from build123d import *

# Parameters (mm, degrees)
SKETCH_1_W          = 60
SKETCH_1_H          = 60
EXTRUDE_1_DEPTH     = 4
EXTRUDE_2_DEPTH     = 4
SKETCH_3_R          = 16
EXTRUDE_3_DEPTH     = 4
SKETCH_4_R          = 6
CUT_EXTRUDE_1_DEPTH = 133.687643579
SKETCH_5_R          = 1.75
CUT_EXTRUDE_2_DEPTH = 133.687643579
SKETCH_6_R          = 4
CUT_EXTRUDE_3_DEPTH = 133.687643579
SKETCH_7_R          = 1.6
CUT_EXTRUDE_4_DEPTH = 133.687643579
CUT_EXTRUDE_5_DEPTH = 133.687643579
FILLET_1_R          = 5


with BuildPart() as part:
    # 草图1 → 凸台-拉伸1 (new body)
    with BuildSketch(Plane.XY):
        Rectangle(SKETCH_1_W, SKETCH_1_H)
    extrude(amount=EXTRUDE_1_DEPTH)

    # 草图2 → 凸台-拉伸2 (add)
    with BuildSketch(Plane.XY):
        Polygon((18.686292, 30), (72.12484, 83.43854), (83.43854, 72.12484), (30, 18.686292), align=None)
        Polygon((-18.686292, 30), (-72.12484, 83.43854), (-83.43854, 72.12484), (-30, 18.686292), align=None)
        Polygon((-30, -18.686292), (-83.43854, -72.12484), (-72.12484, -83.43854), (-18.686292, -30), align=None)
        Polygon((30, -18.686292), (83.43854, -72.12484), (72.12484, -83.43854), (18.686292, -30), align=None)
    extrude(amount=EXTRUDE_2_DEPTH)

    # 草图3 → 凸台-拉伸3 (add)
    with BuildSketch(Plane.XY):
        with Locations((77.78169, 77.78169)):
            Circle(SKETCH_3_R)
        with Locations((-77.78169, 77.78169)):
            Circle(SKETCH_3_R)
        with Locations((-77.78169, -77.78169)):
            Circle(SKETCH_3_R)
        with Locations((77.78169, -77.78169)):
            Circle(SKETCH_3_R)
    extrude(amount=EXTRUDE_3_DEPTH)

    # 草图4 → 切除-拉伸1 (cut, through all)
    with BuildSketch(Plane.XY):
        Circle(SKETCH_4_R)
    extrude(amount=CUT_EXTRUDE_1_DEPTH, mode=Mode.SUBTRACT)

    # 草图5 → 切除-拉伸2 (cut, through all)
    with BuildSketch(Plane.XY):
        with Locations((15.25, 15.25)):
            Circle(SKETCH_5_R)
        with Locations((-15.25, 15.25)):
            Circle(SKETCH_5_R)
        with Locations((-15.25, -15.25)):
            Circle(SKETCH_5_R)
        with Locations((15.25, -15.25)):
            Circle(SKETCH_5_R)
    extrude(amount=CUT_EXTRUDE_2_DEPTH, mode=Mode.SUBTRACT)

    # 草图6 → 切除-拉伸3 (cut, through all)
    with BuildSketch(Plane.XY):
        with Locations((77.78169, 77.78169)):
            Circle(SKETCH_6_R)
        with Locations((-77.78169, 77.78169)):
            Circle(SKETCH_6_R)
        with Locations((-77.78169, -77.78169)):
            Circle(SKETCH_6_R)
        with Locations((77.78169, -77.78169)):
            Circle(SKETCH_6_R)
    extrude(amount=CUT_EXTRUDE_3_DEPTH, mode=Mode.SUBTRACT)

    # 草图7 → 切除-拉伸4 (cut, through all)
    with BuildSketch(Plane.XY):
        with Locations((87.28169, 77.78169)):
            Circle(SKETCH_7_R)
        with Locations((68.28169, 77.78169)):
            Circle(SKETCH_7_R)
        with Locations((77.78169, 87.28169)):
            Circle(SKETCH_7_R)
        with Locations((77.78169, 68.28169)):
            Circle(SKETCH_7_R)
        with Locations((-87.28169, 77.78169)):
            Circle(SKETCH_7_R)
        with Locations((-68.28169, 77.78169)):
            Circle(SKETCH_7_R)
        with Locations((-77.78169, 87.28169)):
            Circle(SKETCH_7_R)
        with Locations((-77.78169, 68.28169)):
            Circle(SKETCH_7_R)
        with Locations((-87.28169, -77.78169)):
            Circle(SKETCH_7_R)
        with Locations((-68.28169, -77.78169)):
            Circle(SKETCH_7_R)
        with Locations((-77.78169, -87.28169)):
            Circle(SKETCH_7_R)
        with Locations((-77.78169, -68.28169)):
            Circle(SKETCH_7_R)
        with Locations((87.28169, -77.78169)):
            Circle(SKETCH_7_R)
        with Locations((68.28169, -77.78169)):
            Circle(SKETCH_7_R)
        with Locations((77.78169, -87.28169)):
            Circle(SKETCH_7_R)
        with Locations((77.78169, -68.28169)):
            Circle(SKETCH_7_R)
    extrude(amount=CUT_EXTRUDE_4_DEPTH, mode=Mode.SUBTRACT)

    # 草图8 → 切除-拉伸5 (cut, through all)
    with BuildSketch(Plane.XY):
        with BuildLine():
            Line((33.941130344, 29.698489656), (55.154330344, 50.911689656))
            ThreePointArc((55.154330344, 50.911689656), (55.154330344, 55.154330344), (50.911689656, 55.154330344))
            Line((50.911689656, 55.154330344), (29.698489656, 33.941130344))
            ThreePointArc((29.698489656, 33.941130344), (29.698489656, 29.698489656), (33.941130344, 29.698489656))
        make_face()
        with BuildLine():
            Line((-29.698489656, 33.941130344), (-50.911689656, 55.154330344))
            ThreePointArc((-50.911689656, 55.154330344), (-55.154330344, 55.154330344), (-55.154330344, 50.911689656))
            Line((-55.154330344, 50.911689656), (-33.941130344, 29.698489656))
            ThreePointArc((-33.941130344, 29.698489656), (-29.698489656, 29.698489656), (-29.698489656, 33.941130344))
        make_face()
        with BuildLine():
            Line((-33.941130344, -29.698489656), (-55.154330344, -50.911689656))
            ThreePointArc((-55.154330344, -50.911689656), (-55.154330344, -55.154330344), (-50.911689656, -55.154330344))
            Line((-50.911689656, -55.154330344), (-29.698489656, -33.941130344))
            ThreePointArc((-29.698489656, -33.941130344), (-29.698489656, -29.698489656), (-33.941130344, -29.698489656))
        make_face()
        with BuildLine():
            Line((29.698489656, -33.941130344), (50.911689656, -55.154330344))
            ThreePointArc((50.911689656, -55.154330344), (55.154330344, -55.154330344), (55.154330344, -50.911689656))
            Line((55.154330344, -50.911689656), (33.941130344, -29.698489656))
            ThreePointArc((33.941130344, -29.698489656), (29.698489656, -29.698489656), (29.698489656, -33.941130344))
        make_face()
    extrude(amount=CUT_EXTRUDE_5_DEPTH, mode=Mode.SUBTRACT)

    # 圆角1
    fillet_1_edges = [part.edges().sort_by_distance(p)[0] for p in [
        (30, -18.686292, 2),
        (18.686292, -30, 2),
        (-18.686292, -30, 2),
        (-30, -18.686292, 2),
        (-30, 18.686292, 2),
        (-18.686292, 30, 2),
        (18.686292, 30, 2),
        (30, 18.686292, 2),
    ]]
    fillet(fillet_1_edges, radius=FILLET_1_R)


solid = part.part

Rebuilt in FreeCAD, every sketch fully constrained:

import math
import FreeCAD as App
import Part
import Sketcher

V = App.Vector


def edges_at(feature, points):
    """Names of the edges that pass closest to the given points."""
    edges = feature.Shape.Edges
    near = lambda p: min(range(len(edges)), key=lambda i: edges[i].distToShape(Part.Vertex(*p))[0])
    return sorted({f"Edge{near(p) + 1}" for p in points})

doc = App.newDocument("Part")
body = doc.addObject("PartDesign::Body", "Body")

sketch1 = body.newObject("Sketcher::SketchObject", "Sketch")
sketch1.AttachmentSupport = (doc.getObject("XY_Plane"), [""])
sketch1.MapMode = "FlatFace"
sketch1.addGeometry(Part.LineSegment(V(-30, 30, 0), V(-30, -30, 0)), False)
sketch1.addGeometry(Part.LineSegment(V(-30, -30, 0), V(30, -30, 0)), False)
sketch1.addGeometry(Part.LineSegment(V(30, -30, 0), V(30, 30, 0)), False)
sketch1.addGeometry(Part.LineSegment(V(30, 30, 0), V(-30, 30, 0)), False)
sketch1.addConstraint(Sketcher.Constraint("Coincident", 0, 2, 1, 1))
sketch1.addConstraint(Sketcher.Constraint("Coincident", 1, 2, 2, 1))
sketch1.addConstraint(Sketcher.Constraint("Coincident", 2, 2, 3, 1))
sketch1.addConstraint(Sketcher.Constraint("Coincident", 3, 2, 0, 1))
sketch1.addConstraint(Sketcher.Constraint("Vertical", 0))
sketch1.addConstraint(Sketcher.Constraint("Horizontal", 1))
sketch1.addConstraint(Sketcher.Constraint("Vertical", 2))
sketch1.addConstraint(Sketcher.Constraint("Horizontal", 3))
sketch1.addConstraint(Sketcher.Constraint("Symmetric", 0, 2, 2, 2, -1, 1))
sketch1.addConstraint(Sketcher.Constraint("Equal", 3, 0))
sketch1.addConstraint(Sketcher.Constraint("DistanceX", 1, 1, 1, 2, 60.0))
pad1 = body.newObject("PartDesign::Pad", "Pad")
pad1.Profile = sketch1
pad1.Length = 4

sketch2 = body.newObject("Sketcher::SketchObject", "Sketch001")
sketch2.AttachmentSupport = (doc.getObject("XY_Plane"), [""])
sketch2.MapMode = "FlatFace"
sketch2.addGeometry(Part.LineSegment(V(72, 83, 0), V(19, 30, 0)), False)
sketch2.addGeometry(Part.LineSegment(V(19, 30, 0), V(30, 19, 0)), False)
sketch2.addGeometry(Part.LineSegment(V(30, 19, 0), V(83, 72, 0)), False)
sketch2.addGeometry(Part.LineSegment(V(83, 72, 0), V(72, 83, 0)), False)
sketch2.addGeometry(Part.LineSegment(V(-19, 30, 0), V(-72, 83, 0)), False)
sketch2.addGeometry(Part.LineSegment(V(-72, 83, 0), V(-83, 72, 0)), False)
sketch2.addGeometry(Part.LineSegment(V(-83, 72, 0), V(-30, 19, 0)), False)
sketch2.addGeometry(Part.LineSegment(V(-30, 19, 0), V(-19, 30, 0)), False)
sketch2.addGeometry(Part.LineSegment(V(-30, -19, 0), V(-83, -72, 0)), False)
sketch2.addGeometry(Part.LineSegment(V(-83, -72, 0), V(-72, -83, 0)), False)
sketch2.addGeometry(Part.LineSegment(V(-72, -83, 0), V(-19, -30, 0)), False)
sketch2.addGeometry(Part.LineSegment(V(-19, -30, 0), V(-30, -19, 0)), False)
sketch2.addGeometry(Part.LineSegment(V(83, -72, 0), V(30, -19, 0)), False)
sketch2.addGeometry(Part.LineSegment(V(30, -19, 0), V(19, -30, 0)), False)
sketch2.addGeometry(Part.LineSegment(V(19, -30, 0), V(72, -83, 0)), False)
sketch2.addGeometry(Part.LineSegment(V(72, -83, 0), V(83, -72, 0)), False)
sketch2.addConstraint(Sketcher.Constraint("Coincident", 0, 2, 1, 1))
sketch2.addConstraint(Sketcher.Constraint("Coincident", 1, 2, 2, 1))
sketch2.addConstraint(Sketcher.Constraint("Coincident", 2, 2, 3, 1))
sketch2.addConstraint(Sketcher.Constraint("Coincident", 3, 2, 0, 1))
sketch2.addConstraint(Sketcher.Constraint("Coincident", 4, 2, 5, 1))
sketch2.addConstraint(Sketcher.Constraint("Coincident", 5, 2, 6, 1))
sketch2.addConstraint(Sketcher.Constraint("Coincident", 6, 2, 7, 1))
sketch2.addConstraint(Sketcher.Constraint("Coincident", 7, 2, 4, 1))
sketch2.addConstraint(Sketcher.Constraint("Coincident", 8, 2, 9, 1))
sketch2.addConstraint(Sketcher.Constraint("Coincident", 9, 2, 10, 1))
sketch2.addConstraint(Sketcher.Constraint("Coincident", 10, 2, 11, 1))
sketch2.addConstraint(Sketcher.Constraint("Coincident", 11, 2, 8, 1))
sketch2.addConstraint(Sketcher.Constraint("Coincident", 12, 2, 13, 1))
sketch2.addConstraint(Sketcher.Constraint("Coincident", 13, 2, 14, 1))
sketch2.addConstraint(Sketcher.Constraint("Coincident", 14, 2, 15, 1))
sketch2.addConstraint(Sketcher.Constraint("Coincident", 15, 2, 12, 1))
sketch2.addConstraint(Sketcher.Constraint("Symmetric", 2, 2, 8, 2, -1, 1))
sketch2.addConstraint(Sketcher.Constraint("Symmetric", 3, 2, 9, 2, -1, 1))
sketch2.addConstraint(Sketcher.Constraint("Symmetric", 0, 2, 10, 2, -1, 1))
sketch2.addConstraint(Sketcher.Constraint("Symmetric", 1, 2, 11, 2, -1, 1))
sketch2.addConstraint(Sketcher.Constraint("Symmetric", 6, 2, 12, 2, -1, 1))
sketch2.addConstraint(Sketcher.Constraint("Symmetric", 7, 2, 13, 2, -1, 1))
sketch2.addConstraint(Sketcher.Constraint("Symmetric", 4, 2, 14, 2, -1, 1))
sketch2.addConstraint(Sketcher.Constraint("Symmetric", 5, 2, 15, 2, -1, 1))
sketch2.addConstraint(Sketcher.Constraint("Symmetric", 3, 2, 4, 2, -2))
sketch2.addConstraint(Sketcher.Constraint("Symmetric", 2, 2, 5, 2, -2))
sketch2.addConstraint(Sketcher.Constraint("Symmetric", 1, 2, 6, 2, -2))
sketch2.addConstraint(Sketcher.Constraint("Symmetric", 0, 2, 7, 2, -2))
sketch2.addConstraint(Sketcher.Constraint("Perpendicular", 0, 1))
sketch2.addConstraint(Sketcher.Constraint("Perpendicular", 1, 2))
sketch2.addConstraint(Sketcher.Constraint("Perpendicular", 2, 3))
sketch2.addConstraint(Sketcher.Constraint("Parallel", 3, 4))
sketch2.addConstraint(Sketcher.Constraint("Distance", 1, 15.999999))
sketch2.addConstraint(Sketcher.Constraint("DistanceY", -1, 1, 0, 2, 30.0))
sketch2.addConstraint(Sketcher.Constraint("DistanceX", -1, 1, 1, 2, 30.0))
sketch2.addConstraint(Sketcher.Constraint("DistanceX", -1, 1, 2, 2, 83.43854))
pad2 = body.newObject("PartDesign::Pad", "Pad001")
pad2.Profile = sketch2
pad2.Length = 4

sketch3 = body.newObject("Sketcher::SketchObject", "Sketch002")
sketch3.AttachmentSupport = (doc.getObject("XY_Plane"), [""])
sketch3.MapMode = "FlatFace"
sketch3.addGeometry(Part.Circle(V(78, 78, 0), V(0, 0, 1), 16), False)
sketch3.addGeometry(Part.Circle(V(-78, 78, 0), V(0, 0, 1), 16), False)
sketch3.addGeometry(Part.Circle(V(-78, -78, 0), V(0, 0, 1), 16), False)
sketch3.addGeometry(Part.Circle(V(78, -78, 0), V(0, 0, 1), 16), False)
sketch3.addConstraint(Sketcher.Constraint("Equal", 0, 1))
sketch3.addConstraint(Sketcher.Constraint("Equal", 1, 2))
sketch3.addConstraint(Sketcher.Constraint("Equal", 2, 3))
sketch3.addConstraint(Sketcher.Constraint("Symmetric", 0, 3, 2, 3, -1, 1))
sketch3.addConstraint(Sketcher.Constraint("Symmetric", 1, 3, 3, 3, -1, 1))
sketch3.addConstraint(Sketcher.Constraint("Symmetric", 0, 3, 1, 3, -2))
sketch3.addConstraint(Sketcher.Constraint("Diameter", 0, 32.0))
sketch3.addConstraint(Sketcher.Constraint("DistanceX", -1, 1, 0, 3, 77.78169))
sketch3.addConstraint(Sketcher.Constraint("DistanceY", -1, 1, 0, 3, 77.78169))
pad3 = body.newObject("PartDesign::Pad", "Pad002")
pad3.Profile = sketch3
pad3.Length = 4

sketch4 = body.newObject("Sketcher::SketchObject", "Sketch003")
sketch4.AttachmentSupport = (doc.getObject("XY_Plane"), [""])
sketch4.MapMode = "FlatFace"
sketch4.addGeometry(Part.Circle(V(0, 0, 0), V(0, 0, 1), 6), False)
sketch4.addConstraint(Sketcher.Constraint("Coincident", 0, 3, -1, 1))
sketch4.addConstraint(Sketcher.Constraint("Diameter", 0, 12.0))
pocket1 = body.newObject("PartDesign::Pocket", "Pocket")
pocket1.Profile = sketch4
pocket1.Type = "ThroughAll"
pocket1.Reversed = True

sketch5 = body.newObject("Sketcher::SketchObject", "Sketch004")
sketch5.AttachmentSupport = (doc.getObject("XY_Plane"), [""])
sketch5.MapMode = "FlatFace"
sketch5.addGeometry(Part.Circle(V(15.2, 15.2, 0), V(0, 0, 1), 1.8), False)
sketch5.addGeometry(Part.Circle(V(-15.2, 15.2, 0), V(0, 0, 1), 1.8), False)
sketch5.addGeometry(Part.Circle(V(-15.2, -15.2, 0), V(0, 0, 1), 1.8), False)
sketch5.addGeometry(Part.Circle(V(15.2, -15.2, 0), V(0, 0, 1), 1.8), False)
sketch5.addConstraint(Sketcher.Constraint("Equal", 0, 1))
sketch5.addConstraint(Sketcher.Constraint("Equal", 1, 2))
sketch5.addConstraint(Sketcher.Constraint("Equal", 2, 3))
sketch5.addConstraint(Sketcher.Constraint("Symmetric", 0, 3, 2, 3, -1, 1))
sketch5.addConstraint(Sketcher.Constraint("Symmetric", 1, 3, 3, 3, -1, 1))
sketch5.addConstraint(Sketcher.Constraint("Symmetric", 0, 3, 1, 3, -2))
sketch5.addConstraint(Sketcher.Constraint("Diameter", 0, 3.5))
sketch5.addConstraint(Sketcher.Constraint("DistanceX", 1, 3, 0, 3, 30.5))
sketch5.addConstraint(Sketcher.Constraint("DistanceY", 2, 3, 1, 3, 30.5))
pocket2 = body.newObject("PartDesign::Pocket", "Pocket001")
pocket2.Profile = sketch5
pocket2.Type = "ThroughAll"
pocket2.Reversed = True

sketch6 = body.newObject("Sketcher::SketchObject", "Sketch005")
sketch6.AttachmentSupport = (doc.getObject("XY_Plane"), [""])
sketch6.MapMode = "FlatFace"
sketch6.addGeometry(Part.Circle(V(77.8, 77.8, 0), V(0, 0, 1), 4), False)
sketch6.addGeometry(Part.Circle(V(-77.8, 77.8, 0), V(0, 0, 1), 4), False)
sketch6.addGeometry(Part.Circle(V(-77.8, -77.8, 0), V(0, 0, 1), 4), False)
sketch6.addGeometry(Part.Circle(V(77.8, -77.8, 0), V(0, 0, 1), 4), False)
sketch6.addConstraint(Sketcher.Constraint("Equal", 0, 1))
sketch6.addConstraint(Sketcher.Constraint("Equal", 1, 2))
sketch6.addConstraint(Sketcher.Constraint("Equal", 2, 3))
sketch6.addConstraint(Sketcher.Constraint("Symmetric", 0, 3, 2, 3, -1, 1))
sketch6.addConstraint(Sketcher.Constraint("Symmetric", 1, 3, 3, 3, -1, 1))
sketch6.addConstraint(Sketcher.Constraint("Symmetric", 0, 3, 1, 3, -2))
sketch6.addConstraint(Sketcher.Constraint("Diameter", 0, 8.0))
sketch6.addConstraint(Sketcher.Constraint("DistanceX", -1, 1, 0, 3, 77.78169))
sketch6.addConstraint(Sketcher.Constraint("DistanceY", -1, 1, 0, 3, 77.78169))
pocket3 = body.newObject("PartDesign::Pocket", "Pocket002")
pocket3.Profile = sketch6
pocket3.Type = "ThroughAll"
pocket3.Reversed = True

sketch7 = body.newObject("Sketcher::SketchObject", "Sketch006")
sketch7.AttachmentSupport = (doc.getObject("XY_Plane"), [""])
sketch7.MapMode = "FlatFace"
sketch7.addGeometry(Part.Circle(V(87.3, 77.8, 0), V(0, 0, 1), 1.6), False)
sketch7.addGeometry(Part.Circle(V(68.3, 77.8, 0), V(0, 0, 1), 1.6), False)
sketch7.addGeometry(Part.Circle(V(77.8, 87.3, 0), V(0, 0, 1), 1.6), False)
sketch7.addGeometry(Part.Circle(V(77.8, 68.3, 0), V(0, 0, 1), 1.6), False)
sketch7.addGeometry(Part.Circle(V(-87.3, 77.8, 0), V(0, 0, 1), 1.6), False)
sketch7.addGeometry(Part.Circle(V(-68.3, 77.8, 0), V(0, 0, 1), 1.6), False)
sketch7.addGeometry(Part.Circle(V(-77.8, 87.3, 0), V(0, 0, 1), 1.6), False)
sketch7.addGeometry(Part.Circle(V(-77.8, 68.3, 0), V(0, 0, 1), 1.6), False)
sketch7.addGeometry(Part.Circle(V(-87.3, -77.8, 0), V(0, 0, 1), 1.6), False)
sketch7.addGeometry(Part.Circle(V(-68.3, -77.8, 0), V(0, 0, 1), 1.6), False)
sketch7.addGeometry(Part.Circle(V(-77.8, -87.3, 0), V(0, 0, 1), 1.6), False)
sketch7.addGeometry(Part.Circle(V(-77.8, -68.3, 0), V(0, 0, 1), 1.6), False)
sketch7.addGeometry(Part.Circle(V(87.3, -77.8, 0), V(0, 0, 1), 1.6), False)
sketch7.addGeometry(Part.Circle(V(68.3, -77.8, 0), V(0, 0, 1), 1.6), False)
sketch7.addGeometry(Part.Circle(V(77.8, -87.3, 0), V(0, 0, 1), 1.6), False)
sketch7.addGeometry(Part.Circle(V(77.8, -68.3, 0), V(0, 0, 1), 1.6), False)
sketch7.addConstraint(Sketcher.Constraint("Equal", 0, 1))
sketch7.addConstraint(Sketcher.Constraint("Equal", 1, 2))
sketch7.addConstraint(Sketcher.Constraint("Equal", 2, 3))
sketch7.addConstraint(Sketcher.Constraint("Equal", 3, 4))
sketch7.addConstraint(Sketcher.Constraint("Equal", 4, 5))
sketch7.addConstraint(Sketcher.Constraint("Equal", 5, 6))
sketch7.addConstraint(Sketcher.Constraint("Equal", 6, 7))
sketch7.addConstraint(Sketcher.Constraint("Equal", 7, 8))
sketch7.addConstraint(Sketcher.Constraint("Equal", 8, 9))
sketch7.addConstraint(Sketcher.Constraint("Equal", 9, 10))
sketch7.addConstraint(Sketcher.Constraint("Equal", 10, 11))
sketch7.addConstraint(Sketcher.Constraint("Equal", 11, 12))
sketch7.addConstraint(Sketcher.Constraint("Equal", 12, 13))
sketch7.addConstraint(Sketcher.Constraint("Equal", 13, 14))
sketch7.addConstraint(Sketcher.Constraint("Equal", 14, 15))
sketch7.addConstraint(Sketcher.Constraint("Symmetric", 0, 3, 8, 3, -1, 1))
sketch7.addConstraint(Sketcher.Constraint("Symmetric", 1, 3, 9, 3, -1, 1))
sketch7.addConstraint(Sketcher.Constraint("Symmetric", 2, 3, 10, 3, -1, 1))
sketch7.addConstraint(Sketcher.Constraint("Symmetric", 3, 3, 11, 3, -1, 1))
sketch7.addConstraint(Sketcher.Constraint("Symmetric", 4, 3, 12, 3, -1, 1))
sketch7.addConstraint(Sketcher.Constraint("Symmetric", 5, 3, 13, 3, -1, 1))
sketch7.addConstraint(Sketcher.Constraint("Symmetric", 6, 3, 14, 3, -1, 1))
sketch7.addConstraint(Sketcher.Constraint("Symmetric", 7, 3, 15, 3, -1, 1))
sketch7.addConstraint(Sketcher.Constraint("Symmetric", 0, 3, 4, 3, -2))
sketch7.addConstraint(Sketcher.Constraint("Symmetric", 1, 3, 5, 3, -2))
sketch7.addConstraint(Sketcher.Constraint("Symmetric", 2, 3, 6, 3, -2))
sketch7.addConstraint(Sketcher.Constraint("Symmetric", 3, 3, 7, 3, -2))
sketch7.addConstraint(Sketcher.Constraint("Horizontal", 0, 3, 1, 3))
sketch7.addConstraint(Sketcher.Constraint("Vertical", 2, 3, 3, 3))
sketch7.addConstraint(Sketcher.Constraint("Diameter", 0, 3.2))
sketch7.addConstraint(Sketcher.Constraint("DistanceX", 1, 3, 0, 3, 19.0))
sketch7.addConstraint(Sketcher.Constraint("DistanceY", 3, 3, 2, 3, 19.0))
sketch7.addConstraint(Sketcher.Constraint("DistanceX", 2, 3, 0, 3, 9.5))
sketch7.addConstraint(Sketcher.Constraint("DistanceY", 0, 3, 2, 3, 9.5))
sketch7.addConstraint(Sketcher.Constraint("DistanceX", -1, 1, 0, 3, 87.28169))
sketch7.addConstraint(Sketcher.Constraint("DistanceY", -1, 1, 0, 3, 77.78169))
pocket4 = body.newObject("PartDesign::Pocket", "Pocket003")
pocket4.Profile = sketch7
pocket4.Type = "ThroughAll"
pocket4.Reversed = True

sketch8 = body.newObject("Sketcher::SketchObject", "Sketch007")
sketch8.AttachmentSupport = (doc.getObject("XY_Plane"), [""])
sketch8.MapMode = "FlatFace"
sketch8.addGeometry(Part.LineSegment(V(33.9, 29.7, 0), V(55.2, 50.9, 0)), False)
sketch8.addGeometry(Part.ArcOfCircle(Part.Circle(V(53, 53, 0), V(0, 0, 1), 3), math.radians(-45), math.radians(135)), False)
sketch8.addGeometry(Part.LineSegment(V(50.9, 55.2, 0), V(29.7, 33.9, 0)), False)
sketch8.addGeometry(Part.ArcOfCircle(Part.Circle(V(31.8, 31.8, 0), V(0, 0, 1), 3), math.radians(135), math.radians(315)), False)
sketch8.addGeometry(Part.LineSegment(V(-29.7, 33.9, 0), V(-50.9, 55.2, 0)), False)
sketch8.addGeometry(Part.ArcOfCircle(Part.Circle(V(-53, 53, 0), V(0, 0, 1), 3), math.radians(45), math.radians(225)), False)
sketch8.addGeometry(Part.LineSegment(V(-55.2, 50.9, 0), V(-33.9, 29.7, 0)), False)
sketch8.addGeometry(Part.ArcOfCircle(Part.Circle(V(-31.8, 31.8, 0), V(0, 0, 1), 3), math.radians(-135), math.radians(45)), False)
sketch8.addGeometry(Part.LineSegment(V(-33.9, -29.7, 0), V(-55.2, -50.9, 0)), False)
sketch8.addGeometry(Part.ArcOfCircle(Part.Circle(V(-53, -53, 0), V(0, 0, 1), 3), math.radians(135), math.radians(315)), False)
sketch8.addGeometry(Part.LineSegment(V(-50.9, -55.2, 0), V(-29.7, -33.9, 0)), False)
sketch8.addGeometry(Part.ArcOfCircle(Part.Circle(V(-31.8, -31.8, 0), V(0, 0, 1), 3), math.radians(-45), math.radians(135)), False)
sketch8.addGeometry(Part.LineSegment(V(29.7, -33.9, 0), V(50.9, -55.2, 0)), False)
sketch8.addGeometry(Part.ArcOfCircle(Part.Circle(V(53, -53, 0), V(0, 0, 1), 3), math.radians(-135), math.radians(45)), False)
sketch8.addGeometry(Part.LineSegment(V(55.2, -50.9, 0), V(33.9, -29.7, 0)), False)
sketch8.addGeometry(Part.ArcOfCircle(Part.Circle(V(31.8, -31.8, 0), V(0, 0, 1), 3), math.radians(45), math.radians(225)), False)
sketch8.addConstraint(Sketcher.Constraint("Tangent", 0, 2, 1, 1))
sketch8.addConstraint(Sketcher.Constraint("Tangent", 1, 2, 2, 1))
sketch8.addConstraint(Sketcher.Constraint("Tangent", 2, 2, 3, 1))
sketch8.addConstraint(Sketcher.Constraint("Tangent", 3, 2, 0, 1))
sketch8.addConstraint(Sketcher.Constraint("Tangent", 4, 2, 5, 1))
sketch8.addConstraint(Sketcher.Constraint("Tangent", 5, 2, 6, 1))
sketch8.addConstraint(Sketcher.Constraint("Tangent", 6, 2, 7, 1))
sketch8.addConstraint(Sketcher.Constraint("Tangent", 7, 2, 4, 1))
sketch8.addConstraint(Sketcher.Constraint("Tangent", 8, 2, 9, 1))
sketch8.addConstraint(Sketcher.Constraint("Tangent", 9, 2, 10, 1))
sketch8.addConstraint(Sketcher.Constraint("Tangent", 10, 2, 11, 1))
sketch8.addConstraint(Sketcher.Constraint("Tangent", 11, 2, 8, 1))
sketch8.addConstraint(Sketcher.Constraint("Tangent", 12, 2, 13, 1))
sketch8.addConstraint(Sketcher.Constraint("Tangent", 13, 2, 14, 1))
sketch8.addConstraint(Sketcher.Constraint("Tangent", 14, 2, 15, 1))
sketch8.addConstraint(Sketcher.Constraint("Tangent", 15, 2, 12, 1))
sketch8.addConstraint(Sketcher.Constraint("Equal", 1, 3))
sketch8.addConstraint(Sketcher.Constraint("Equal", 3, 5))
sketch8.addConstraint(Sketcher.Constraint("Equal", 5, 7))
sketch8.addConstraint(Sketcher.Constraint("Equal", 7, 9))
sketch8.addConstraint(Sketcher.Constraint("Equal", 9, 11))
sketch8.addConstraint(Sketcher.Constraint("Equal", 11, 13))
sketch8.addConstraint(Sketcher.Constraint("Equal", 13, 15))
sketch8.addConstraint(Sketcher.Constraint("Symmetric", 1, 3, 9, 3, -1, 1))
sketch8.addConstraint(Sketcher.Constraint("Symmetric", 3, 3, 11, 3, -1, 1))
sketch8.addConstraint(Sketcher.Constraint("Symmetric", 5, 3, 13, 3, -1, 1))
sketch8.addConstraint(Sketcher.Constraint("Symmetric", 7, 3, 15, 3, -1, 1))
sketch8.addConstraint(Sketcher.Constraint("Symmetric", 1, 3, 5, 3, -2))
sketch8.addConstraint(Sketcher.Constraint("Symmetric", 3, 3, 7, 3, -2))
sketch8.addConstraint(Sketcher.Constraint("Perpendicular", 2, 4))
sketch8.addConstraint(Sketcher.Constraint("Radius", 1, 3.0))
sketch8.addConstraint(Sketcher.Constraint("DistanceX", 3, 3, 1, 3, 21.2132))
sketch8.addConstraint(Sketcher.Constraint("DistanceY", 15, 3, 0, 2, 82.7315))
sketch8.addConstraint(Sketcher.Constraint("DistanceX", 7, 3, 1, 2, 82.7315))
pocket5 = body.newObject("PartDesign::Pocket", "Pocket004")
pocket5.Profile = sketch8
pocket5.Type = "ThroughAll"
pocket5.Reversed = True
doc.recompute()

fillet = body.newObject("PartDesign::Fillet", "Fillet")
fillet.Base = (pocket5, edges_at(pocket5, [
    (30, -18.686, 2),
    (18.686, -30, 2),
    (-18.686, -30, 2),
    (-30, -18.686, 2),
    (-30, 18.686, 2),
    (-18.686, 30, 2),
    (18.686, 30, 2),
    (30, 18.686, 2),
]))
fillet.Radius = 5

doc.recompute()
